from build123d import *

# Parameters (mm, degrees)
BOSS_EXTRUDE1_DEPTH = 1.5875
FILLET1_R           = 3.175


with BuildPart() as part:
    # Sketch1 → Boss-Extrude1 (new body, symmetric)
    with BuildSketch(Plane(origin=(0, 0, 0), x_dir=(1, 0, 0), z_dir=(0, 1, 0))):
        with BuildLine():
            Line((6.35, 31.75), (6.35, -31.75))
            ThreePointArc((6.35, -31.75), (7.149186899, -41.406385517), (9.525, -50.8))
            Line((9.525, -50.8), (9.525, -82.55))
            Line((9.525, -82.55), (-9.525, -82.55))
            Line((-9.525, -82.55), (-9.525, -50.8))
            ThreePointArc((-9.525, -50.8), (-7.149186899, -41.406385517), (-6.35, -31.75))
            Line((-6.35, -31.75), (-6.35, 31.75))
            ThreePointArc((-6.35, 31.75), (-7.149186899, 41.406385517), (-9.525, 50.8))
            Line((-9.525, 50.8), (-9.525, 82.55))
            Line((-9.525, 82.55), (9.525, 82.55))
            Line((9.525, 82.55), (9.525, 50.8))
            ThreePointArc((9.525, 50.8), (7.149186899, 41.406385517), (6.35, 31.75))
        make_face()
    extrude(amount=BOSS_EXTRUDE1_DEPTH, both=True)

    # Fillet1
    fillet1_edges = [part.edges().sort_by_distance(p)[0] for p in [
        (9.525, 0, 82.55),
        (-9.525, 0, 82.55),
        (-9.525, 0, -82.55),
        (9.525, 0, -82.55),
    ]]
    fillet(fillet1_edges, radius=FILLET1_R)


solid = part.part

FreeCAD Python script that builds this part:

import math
import FreeCAD as App
import Part
import Sketcher
Q = App.Units.Quantity


def edges_at(feature, points):
    """Names of the edges that pass closest to the given points."""
    edges = feature.Shape.Edges
    near = lambda p: min(range(len(edges)), key=lambda i: edges[i].distToShape(Part.Vertex(*p))[0])
    return sorted({f"Edge{near(p) + 1}" for p in points})

doc = App.newDocument("Part")
body = doc.addObject("PartDesign::Body", "Body")

# Sketch on XZ plane
sketch1 = body.newObject("Sketcher::SketchObject", "Sketch")
sketch1.AttachmentSupport = (doc.getObject("XZ_Plane"), [""])
sketch1.MapMode = "FlatFace"
sketch1.addGeometry(Part.LineSegment(App.Vector(6, 32, 0), App.Vector(6, -32, 0)), False)
sketch1.addGeometry(Part.ArcOfCircle(Part.Circle(App.Vector(65, -32, 0), App.Vector(0, 0, 1), 59), math.radians(-180), math.radians(-161.08)), False)
sketch1.addGeometry(Part.LineSegment(App.Vector(10, -51, 0), App.Vector(10, -83, 0)), False)
sketch1.addGeometry(Part.LineSegment(App.Vector(10, -83, 0), App.Vector(-10, -83, 0)), False)
sketch1.addGeometry(Part.LineSegment(App.Vector(-10, -83, 0), App.Vector(-10, -51, 0)), False)
sketch1.addGeometry(Part.ArcOfCircle(Part.Circle(App.Vector(-65, -32, 0), App.Vector(0, 0, 1), 59), math.radians(-18.92), math.radians(0)), False)
sketch1.addGeometry(Part.LineSegment(App.Vector(-6, -32, 0), App.Vector(-6, 32, 0)), False)
sketch1.addGeometry(Part.ArcOfCircle(Part.Circle(App.Vector(-65, 32, 0), App.Vector(0, 0, 1), 59), math.radians(0), math.radians(18.92)), False)
sketch1.addGeometry(Part.LineSegment(App.Vector(-10, 51, 0), App.Vector(-10, 83, 0)), False)
sketch1.addGeometry(Part.LineSegment(App.Vector(-10, 83, 0), App.Vector(10, 83, 0)), False)
sketch1.addGeometry(Part.LineSegment(App.Vector(10, 83, 0), App.Vector(10, 51, 0)), False)
sketch1.addGeometry(Part.ArcOfCircle(Part.Circle(App.Vector(65, 32, 0), App.Vector(0, 0, 1), 59), math.radians(161.08), math.radians(180)), False)
sketch1.addConstraint(Sketcher.Constraint("Tangent", 0, 2, 1, 1))
sketch1.addConstraint(Sketcher.Constraint("Coincident", 1, 2, 2, 1))
sketch1.addConstraint(Sketcher.Constraint("Coincident", 2, 2, 3, 1))
sketch1.addConstraint(Sketcher.Constraint("Coincident", 3, 2, 4, 1))
sketch1.addConstraint(Sketcher.Constraint("Coincident", 4, 2, 5, 1))
sketch1.addConstraint(Sketcher.Constraint("Tangent", 5, 2, 6, 1))
sketch1.addConstraint(Sketcher.Constraint("Tangent", 6, 2, 7, 1))
sketch1.addConstraint(Sketcher.Constraint("Coincident", 7, 2, 8, 1))
sketch1.addConstraint(Sketcher.Constraint("Coincident", 8, 2, 9, 1))
sketch1.addConstraint(Sketcher.Constraint("Coincident", 9, 2, 10, 1))
sketch1.addConstraint(Sketcher.Constraint("Coincident", 10, 2, 11, 1))
sketch1.addConstraint(Sketcher.Constraint("Tangent", 11, 2, 0, 1))
sketch1.addConstraint(Sketcher.Constraint("Vertical", 0))
sketch1.addConstraint(Sketcher.Constraint("Vertical", 2))
sketch1.addConstraint(Sketcher.Constraint("Horizontal", 3))
sketch1.addConstraint(Sketcher.Constraint("Vertical", 4))
sketch1.addConstraint(Sketcher.Constraint("Vertical", 6))
sketch1.addConstraint(Sketcher.Constraint("Vertical", 8))
sketch1.addConstraint(Sketcher.Constraint("Horizontal", 9))
sketch1.addConstraint(Sketcher.Constraint("Vertical", 10))
sketch1.addConstraint(Sketcher.Constraint("Equal", 1, 5))
sketch1.addConstraint(Sketcher.Constraint("Equal", 5, 7))
sketch1.addConstraint(Sketcher.Constraint("Equal", 7, 11))
sketch1.addConstraint(Sketcher.Constraint("Symmetric", 1, 3, 7, 3, -1, 1))
sketch1.addConstraint(Sketcher.Constraint("Symmetric", 2, 2, 8, 2, -1, 1))
sketch1.addConstraint(Sketcher.Constraint("Symmetric", 4, 2, 10, 2, -1, 1))
sketch1.addConstraint(Sketcher.Constraint("Symmetric", 1, 2, 4, 2, -2))
sketch1.addConstraint(Sketcher.Constraint("DistanceY", 0, 2, 0, 1, Q("2.5 in")))
sketch1.addConstraint(Sketcher.Constraint("DistanceY", 1, 2, -1, 1, Q("2 in")))
sketch1.addConstraint(Sketcher.Constraint("Radius", 1, Q("2.3125 in")))
sketch1.addConstraint(Sketcher.Constraint("DistanceY", 2, 2, 0, 2, Q("2 in")))
sketch1.addConstraint(Sketcher.Constraint("DistanceX", 3, 2, 3, 1, Q("0.75 in")))
pad1 = body.newObject("PartDesign::Pad", "Pad")
pad1.Profile = sketch1
pad1.Length = Q("0.125 in")
pad1.Midplane = True
doc.recompute()

fillet = body.newObject("PartDesign::Fillet", "Fillet")
fillet.Base = (pad1, edges_at(pad1, [
    (9.525, 0, 82.55),
    (-9.525, 0, 82.55),
    (-9.525, 0, -82.55),
    (9.525, 0, -82.55),
]))
fillet.Radius = Q("0.125 in")

doc.recompute()
